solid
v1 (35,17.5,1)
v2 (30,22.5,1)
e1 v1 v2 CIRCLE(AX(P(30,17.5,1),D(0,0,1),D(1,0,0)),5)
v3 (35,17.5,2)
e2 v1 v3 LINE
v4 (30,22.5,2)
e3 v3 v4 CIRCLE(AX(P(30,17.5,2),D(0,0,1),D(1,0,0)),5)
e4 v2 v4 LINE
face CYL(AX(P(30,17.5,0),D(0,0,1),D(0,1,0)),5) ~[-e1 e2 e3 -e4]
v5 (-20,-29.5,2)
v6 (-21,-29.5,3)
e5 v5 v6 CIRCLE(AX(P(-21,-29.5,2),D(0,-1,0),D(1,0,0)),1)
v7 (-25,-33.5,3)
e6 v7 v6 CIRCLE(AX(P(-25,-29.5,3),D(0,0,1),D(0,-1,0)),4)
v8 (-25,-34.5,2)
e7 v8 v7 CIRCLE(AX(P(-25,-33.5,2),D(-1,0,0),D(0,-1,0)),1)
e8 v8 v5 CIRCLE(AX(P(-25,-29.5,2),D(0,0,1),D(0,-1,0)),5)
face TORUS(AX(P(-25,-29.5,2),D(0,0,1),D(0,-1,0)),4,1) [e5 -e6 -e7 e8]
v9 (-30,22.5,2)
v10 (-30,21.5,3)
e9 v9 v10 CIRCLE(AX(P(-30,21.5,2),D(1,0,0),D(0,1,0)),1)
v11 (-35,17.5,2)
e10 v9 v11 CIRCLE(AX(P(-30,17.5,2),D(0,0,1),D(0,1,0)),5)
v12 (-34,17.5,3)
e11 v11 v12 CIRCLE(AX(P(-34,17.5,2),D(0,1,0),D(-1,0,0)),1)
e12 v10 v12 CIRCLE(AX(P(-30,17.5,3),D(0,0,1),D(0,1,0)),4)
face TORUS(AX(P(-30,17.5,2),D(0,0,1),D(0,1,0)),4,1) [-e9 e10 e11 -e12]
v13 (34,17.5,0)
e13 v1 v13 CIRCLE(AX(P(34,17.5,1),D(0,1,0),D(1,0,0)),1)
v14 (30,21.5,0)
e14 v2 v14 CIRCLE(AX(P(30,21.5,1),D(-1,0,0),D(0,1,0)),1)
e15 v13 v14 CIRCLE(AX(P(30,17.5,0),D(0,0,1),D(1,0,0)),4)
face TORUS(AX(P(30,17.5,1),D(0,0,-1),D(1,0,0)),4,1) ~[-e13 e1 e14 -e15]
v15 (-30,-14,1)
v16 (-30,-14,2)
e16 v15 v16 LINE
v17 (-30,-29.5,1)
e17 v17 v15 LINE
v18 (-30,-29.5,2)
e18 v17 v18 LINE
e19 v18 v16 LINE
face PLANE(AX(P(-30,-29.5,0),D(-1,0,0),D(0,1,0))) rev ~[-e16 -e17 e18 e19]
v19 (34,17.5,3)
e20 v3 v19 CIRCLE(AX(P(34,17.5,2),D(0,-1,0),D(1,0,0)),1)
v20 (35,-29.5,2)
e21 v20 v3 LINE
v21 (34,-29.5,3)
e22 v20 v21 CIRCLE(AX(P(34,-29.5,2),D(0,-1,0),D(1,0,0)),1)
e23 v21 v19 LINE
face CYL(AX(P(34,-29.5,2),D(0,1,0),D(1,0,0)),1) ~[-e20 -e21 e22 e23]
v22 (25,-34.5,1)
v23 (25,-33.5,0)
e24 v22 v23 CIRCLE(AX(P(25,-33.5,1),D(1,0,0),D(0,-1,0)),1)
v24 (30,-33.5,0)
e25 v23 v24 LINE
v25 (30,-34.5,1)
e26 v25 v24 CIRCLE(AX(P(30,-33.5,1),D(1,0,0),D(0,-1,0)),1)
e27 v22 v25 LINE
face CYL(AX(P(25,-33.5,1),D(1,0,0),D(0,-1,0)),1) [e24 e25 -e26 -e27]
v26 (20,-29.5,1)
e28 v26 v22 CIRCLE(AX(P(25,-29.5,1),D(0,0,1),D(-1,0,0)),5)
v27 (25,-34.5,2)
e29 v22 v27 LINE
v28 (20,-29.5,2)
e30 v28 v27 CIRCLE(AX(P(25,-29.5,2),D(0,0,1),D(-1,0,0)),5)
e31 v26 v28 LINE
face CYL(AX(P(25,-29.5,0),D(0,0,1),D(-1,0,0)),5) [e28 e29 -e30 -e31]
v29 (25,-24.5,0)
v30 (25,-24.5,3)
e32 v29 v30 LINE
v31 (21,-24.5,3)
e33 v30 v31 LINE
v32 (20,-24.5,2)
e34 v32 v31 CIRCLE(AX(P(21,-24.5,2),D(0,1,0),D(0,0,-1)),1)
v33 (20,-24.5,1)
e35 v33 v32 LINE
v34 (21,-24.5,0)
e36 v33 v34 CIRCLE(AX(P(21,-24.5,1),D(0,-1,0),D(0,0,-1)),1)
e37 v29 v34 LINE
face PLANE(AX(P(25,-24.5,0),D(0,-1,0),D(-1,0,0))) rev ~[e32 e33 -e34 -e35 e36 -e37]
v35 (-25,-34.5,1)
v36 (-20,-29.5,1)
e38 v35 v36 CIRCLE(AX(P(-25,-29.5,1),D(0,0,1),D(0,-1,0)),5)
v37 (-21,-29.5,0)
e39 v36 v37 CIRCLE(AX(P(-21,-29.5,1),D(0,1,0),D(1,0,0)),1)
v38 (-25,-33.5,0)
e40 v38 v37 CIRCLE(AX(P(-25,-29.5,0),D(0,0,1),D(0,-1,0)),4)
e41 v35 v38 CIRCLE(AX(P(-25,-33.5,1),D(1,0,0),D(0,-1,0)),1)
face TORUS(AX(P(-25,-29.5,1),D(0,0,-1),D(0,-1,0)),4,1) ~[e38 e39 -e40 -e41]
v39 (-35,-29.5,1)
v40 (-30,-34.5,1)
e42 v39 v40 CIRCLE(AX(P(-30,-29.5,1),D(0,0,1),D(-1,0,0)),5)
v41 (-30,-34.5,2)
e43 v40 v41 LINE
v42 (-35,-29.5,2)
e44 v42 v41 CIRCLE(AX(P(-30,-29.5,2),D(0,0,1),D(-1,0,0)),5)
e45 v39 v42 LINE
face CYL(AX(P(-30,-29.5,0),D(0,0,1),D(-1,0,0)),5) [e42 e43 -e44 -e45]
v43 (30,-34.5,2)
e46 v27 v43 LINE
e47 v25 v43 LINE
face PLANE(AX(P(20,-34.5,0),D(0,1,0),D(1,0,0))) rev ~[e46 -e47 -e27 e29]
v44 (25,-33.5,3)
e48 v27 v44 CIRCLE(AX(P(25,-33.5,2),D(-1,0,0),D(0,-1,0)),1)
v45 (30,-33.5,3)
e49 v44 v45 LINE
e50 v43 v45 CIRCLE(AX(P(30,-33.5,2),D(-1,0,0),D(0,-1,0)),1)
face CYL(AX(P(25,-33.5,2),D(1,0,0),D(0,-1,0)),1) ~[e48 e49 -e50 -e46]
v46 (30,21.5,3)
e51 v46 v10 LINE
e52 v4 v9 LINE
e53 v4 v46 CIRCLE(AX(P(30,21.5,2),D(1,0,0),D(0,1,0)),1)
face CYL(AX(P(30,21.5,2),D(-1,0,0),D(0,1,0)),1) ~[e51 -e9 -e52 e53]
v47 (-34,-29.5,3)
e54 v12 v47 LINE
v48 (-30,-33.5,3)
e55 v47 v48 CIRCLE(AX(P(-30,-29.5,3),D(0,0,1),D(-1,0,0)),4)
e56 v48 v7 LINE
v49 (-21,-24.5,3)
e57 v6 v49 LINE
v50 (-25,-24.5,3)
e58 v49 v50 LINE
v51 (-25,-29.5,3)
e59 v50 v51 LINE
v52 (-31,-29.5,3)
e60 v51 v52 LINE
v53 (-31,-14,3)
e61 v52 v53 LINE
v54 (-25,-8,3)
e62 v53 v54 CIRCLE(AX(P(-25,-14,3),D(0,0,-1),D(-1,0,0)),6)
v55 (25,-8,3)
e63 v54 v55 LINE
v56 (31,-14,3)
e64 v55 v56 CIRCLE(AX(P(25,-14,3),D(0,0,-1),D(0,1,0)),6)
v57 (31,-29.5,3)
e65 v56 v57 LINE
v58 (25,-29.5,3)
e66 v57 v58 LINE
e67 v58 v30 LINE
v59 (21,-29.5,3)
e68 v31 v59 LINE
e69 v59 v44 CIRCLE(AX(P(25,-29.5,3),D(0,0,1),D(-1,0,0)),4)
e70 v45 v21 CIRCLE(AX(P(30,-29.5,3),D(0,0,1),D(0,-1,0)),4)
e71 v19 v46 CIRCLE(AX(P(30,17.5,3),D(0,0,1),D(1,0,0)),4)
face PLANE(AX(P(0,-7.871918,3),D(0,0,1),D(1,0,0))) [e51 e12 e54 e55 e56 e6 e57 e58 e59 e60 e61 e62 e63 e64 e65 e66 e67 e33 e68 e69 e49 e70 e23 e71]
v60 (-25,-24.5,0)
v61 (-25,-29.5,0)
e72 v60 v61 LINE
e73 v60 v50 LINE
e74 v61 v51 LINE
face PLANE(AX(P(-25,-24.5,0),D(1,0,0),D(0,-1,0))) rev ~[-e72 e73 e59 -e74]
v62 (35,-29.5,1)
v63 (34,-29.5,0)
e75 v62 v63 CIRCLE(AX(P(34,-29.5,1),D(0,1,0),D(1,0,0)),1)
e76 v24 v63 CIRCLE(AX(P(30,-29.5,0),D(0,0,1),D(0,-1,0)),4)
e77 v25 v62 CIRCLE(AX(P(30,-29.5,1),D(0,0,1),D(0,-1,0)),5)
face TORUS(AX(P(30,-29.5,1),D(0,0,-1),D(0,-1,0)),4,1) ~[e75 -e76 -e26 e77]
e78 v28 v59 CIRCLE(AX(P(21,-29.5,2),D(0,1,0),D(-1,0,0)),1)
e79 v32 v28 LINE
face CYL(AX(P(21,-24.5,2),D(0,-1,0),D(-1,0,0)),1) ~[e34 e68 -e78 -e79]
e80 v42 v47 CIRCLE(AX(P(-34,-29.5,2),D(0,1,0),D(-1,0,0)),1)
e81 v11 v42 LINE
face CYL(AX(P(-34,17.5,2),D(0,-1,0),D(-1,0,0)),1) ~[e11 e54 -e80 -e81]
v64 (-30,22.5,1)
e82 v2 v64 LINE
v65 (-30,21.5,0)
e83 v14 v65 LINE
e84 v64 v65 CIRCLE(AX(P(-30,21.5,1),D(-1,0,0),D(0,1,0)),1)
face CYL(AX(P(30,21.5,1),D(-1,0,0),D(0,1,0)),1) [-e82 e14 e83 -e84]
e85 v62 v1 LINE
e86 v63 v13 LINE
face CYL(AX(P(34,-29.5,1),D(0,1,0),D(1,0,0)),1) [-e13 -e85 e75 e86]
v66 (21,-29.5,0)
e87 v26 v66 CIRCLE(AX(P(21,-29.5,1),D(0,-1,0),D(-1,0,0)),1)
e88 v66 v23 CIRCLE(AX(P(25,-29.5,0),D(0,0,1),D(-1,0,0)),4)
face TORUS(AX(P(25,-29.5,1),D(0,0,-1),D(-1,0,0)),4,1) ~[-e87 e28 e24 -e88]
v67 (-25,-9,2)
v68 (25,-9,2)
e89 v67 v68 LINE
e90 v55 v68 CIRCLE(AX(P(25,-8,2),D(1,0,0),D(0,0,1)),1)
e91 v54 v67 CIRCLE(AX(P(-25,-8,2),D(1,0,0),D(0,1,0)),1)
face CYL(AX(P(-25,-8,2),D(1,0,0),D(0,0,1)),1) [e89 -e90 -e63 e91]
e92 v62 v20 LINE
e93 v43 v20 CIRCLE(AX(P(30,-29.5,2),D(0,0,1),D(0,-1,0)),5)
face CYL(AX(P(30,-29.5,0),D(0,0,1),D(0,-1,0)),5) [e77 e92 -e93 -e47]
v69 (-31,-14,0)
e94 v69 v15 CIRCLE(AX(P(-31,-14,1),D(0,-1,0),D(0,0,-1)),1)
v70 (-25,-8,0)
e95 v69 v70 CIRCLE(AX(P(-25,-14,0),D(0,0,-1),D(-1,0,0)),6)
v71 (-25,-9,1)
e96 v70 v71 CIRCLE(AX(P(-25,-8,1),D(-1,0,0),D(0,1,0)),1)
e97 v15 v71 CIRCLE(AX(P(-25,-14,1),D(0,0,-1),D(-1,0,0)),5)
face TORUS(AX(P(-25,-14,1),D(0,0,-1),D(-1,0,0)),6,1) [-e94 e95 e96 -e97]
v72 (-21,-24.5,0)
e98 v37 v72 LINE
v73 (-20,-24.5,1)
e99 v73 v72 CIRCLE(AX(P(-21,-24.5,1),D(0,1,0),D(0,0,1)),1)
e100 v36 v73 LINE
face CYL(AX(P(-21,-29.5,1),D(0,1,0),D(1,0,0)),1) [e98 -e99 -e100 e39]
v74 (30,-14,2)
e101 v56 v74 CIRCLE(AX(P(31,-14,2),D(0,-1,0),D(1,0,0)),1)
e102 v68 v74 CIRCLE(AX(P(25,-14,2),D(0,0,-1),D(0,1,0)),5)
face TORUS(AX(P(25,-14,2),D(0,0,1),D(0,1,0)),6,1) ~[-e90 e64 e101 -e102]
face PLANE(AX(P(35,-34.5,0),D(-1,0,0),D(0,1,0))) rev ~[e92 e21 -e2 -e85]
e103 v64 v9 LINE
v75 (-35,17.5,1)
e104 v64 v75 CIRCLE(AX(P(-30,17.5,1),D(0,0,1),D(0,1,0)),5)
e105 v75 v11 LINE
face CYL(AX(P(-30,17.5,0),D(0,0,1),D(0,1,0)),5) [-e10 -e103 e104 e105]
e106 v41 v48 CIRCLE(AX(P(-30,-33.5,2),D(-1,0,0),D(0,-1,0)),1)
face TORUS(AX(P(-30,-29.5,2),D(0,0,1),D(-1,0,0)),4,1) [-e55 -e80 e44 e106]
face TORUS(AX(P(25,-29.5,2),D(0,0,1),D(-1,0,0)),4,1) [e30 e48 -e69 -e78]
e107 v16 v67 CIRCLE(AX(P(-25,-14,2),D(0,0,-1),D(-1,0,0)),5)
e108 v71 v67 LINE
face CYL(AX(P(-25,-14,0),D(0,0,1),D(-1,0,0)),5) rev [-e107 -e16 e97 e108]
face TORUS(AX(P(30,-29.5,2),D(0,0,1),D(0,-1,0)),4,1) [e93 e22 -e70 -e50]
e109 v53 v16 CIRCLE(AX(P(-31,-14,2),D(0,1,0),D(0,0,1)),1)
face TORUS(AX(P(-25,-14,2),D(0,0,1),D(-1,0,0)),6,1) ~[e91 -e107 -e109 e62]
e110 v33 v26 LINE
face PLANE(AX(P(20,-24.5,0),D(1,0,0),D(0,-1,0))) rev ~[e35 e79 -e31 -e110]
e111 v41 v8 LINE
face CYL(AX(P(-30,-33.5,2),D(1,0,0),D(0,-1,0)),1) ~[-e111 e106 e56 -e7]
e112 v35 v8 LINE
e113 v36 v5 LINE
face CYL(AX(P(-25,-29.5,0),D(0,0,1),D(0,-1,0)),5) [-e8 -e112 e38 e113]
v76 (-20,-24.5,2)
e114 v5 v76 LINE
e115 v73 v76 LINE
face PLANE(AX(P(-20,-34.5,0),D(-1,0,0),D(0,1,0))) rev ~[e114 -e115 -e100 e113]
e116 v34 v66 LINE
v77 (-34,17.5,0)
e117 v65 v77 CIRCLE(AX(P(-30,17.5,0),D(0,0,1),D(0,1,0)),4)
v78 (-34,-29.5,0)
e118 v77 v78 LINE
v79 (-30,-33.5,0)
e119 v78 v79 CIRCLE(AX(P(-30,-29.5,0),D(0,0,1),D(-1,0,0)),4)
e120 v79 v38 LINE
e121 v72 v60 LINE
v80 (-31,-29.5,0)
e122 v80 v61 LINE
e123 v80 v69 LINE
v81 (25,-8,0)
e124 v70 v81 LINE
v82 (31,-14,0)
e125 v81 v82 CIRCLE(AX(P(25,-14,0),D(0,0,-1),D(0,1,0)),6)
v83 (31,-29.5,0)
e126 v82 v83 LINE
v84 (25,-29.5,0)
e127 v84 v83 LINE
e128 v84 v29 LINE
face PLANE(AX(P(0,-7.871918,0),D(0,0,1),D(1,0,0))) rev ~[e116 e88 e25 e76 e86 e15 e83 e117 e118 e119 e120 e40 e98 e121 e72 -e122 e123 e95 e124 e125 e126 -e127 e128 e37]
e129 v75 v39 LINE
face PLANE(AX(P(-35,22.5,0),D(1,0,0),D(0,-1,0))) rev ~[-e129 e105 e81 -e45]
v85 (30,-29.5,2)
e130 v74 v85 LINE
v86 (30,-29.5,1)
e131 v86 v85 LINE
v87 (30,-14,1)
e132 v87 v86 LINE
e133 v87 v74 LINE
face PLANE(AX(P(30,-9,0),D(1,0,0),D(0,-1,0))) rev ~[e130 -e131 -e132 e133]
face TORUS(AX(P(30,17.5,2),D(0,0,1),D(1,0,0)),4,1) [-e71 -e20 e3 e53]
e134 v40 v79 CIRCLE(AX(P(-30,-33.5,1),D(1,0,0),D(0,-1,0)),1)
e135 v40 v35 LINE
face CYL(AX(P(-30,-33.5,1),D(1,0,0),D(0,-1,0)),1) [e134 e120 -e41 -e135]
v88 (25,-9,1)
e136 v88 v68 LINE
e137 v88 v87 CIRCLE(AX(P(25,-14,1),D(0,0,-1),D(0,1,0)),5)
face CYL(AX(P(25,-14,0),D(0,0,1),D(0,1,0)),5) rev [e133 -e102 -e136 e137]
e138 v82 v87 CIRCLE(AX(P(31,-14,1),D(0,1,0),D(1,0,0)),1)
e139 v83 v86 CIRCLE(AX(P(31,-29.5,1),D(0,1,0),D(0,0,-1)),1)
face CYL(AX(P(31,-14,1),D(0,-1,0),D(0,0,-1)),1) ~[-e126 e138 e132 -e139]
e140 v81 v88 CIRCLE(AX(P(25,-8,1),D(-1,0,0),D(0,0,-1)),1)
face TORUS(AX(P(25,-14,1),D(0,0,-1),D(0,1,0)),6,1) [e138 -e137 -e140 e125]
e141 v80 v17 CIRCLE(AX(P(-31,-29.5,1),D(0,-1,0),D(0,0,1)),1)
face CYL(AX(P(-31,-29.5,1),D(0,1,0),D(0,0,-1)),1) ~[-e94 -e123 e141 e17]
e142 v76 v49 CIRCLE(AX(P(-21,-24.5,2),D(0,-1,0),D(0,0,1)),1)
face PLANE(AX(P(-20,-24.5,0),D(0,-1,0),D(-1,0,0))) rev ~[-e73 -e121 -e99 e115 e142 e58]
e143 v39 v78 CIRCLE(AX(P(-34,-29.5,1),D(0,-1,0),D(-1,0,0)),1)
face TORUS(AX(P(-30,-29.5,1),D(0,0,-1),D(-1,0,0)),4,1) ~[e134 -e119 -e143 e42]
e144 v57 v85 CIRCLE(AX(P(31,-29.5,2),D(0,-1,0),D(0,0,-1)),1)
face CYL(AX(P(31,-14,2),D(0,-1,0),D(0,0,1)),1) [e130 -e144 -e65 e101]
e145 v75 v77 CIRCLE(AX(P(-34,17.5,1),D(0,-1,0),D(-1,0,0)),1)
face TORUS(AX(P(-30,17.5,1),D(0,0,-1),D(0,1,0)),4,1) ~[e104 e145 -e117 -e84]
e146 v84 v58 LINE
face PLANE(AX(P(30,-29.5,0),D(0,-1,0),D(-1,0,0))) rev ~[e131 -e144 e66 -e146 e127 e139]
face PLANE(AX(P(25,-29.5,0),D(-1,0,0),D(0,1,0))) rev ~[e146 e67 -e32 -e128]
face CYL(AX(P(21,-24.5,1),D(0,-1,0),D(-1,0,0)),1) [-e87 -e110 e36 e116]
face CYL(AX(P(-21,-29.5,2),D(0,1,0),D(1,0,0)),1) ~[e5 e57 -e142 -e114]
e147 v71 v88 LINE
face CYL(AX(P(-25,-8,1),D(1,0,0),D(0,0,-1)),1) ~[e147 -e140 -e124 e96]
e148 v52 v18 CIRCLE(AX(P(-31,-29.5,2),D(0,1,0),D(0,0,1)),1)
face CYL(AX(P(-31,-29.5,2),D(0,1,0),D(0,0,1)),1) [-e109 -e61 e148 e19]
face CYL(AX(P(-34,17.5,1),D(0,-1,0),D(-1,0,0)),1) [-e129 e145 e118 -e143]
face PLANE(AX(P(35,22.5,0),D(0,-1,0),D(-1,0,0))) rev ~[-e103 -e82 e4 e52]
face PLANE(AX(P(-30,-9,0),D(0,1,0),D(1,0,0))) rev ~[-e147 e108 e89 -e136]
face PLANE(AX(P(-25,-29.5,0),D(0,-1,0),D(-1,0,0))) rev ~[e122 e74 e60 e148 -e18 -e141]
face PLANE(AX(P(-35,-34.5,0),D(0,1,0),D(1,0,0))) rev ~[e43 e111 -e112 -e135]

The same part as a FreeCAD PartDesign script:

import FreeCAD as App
import Part
import Sketcher


def edges_at(feature, points):
    """Names of the edges that pass closest to the given points."""
    edges = feature.Shape.Edges
    near = lambda p: min(range(len(edges)), key=lambda i: edges[i].distToShape(Part.Vertex(*p))[0])
    return sorted({f"Edge{near(p) + 1}" for p in points})

doc = App.newDocument("Part")
params = doc.addObject("Spreadsheet::Sheet", "Params")
for row, (alias, value) in enumerate([
    ("sketch1_width", "70 mm"),
    ("sketch1_width2", "15 mm"),
    ("sketch1_width3", "5 mm"),
    ("sketch1_height", "57 mm"),
    ("sketch1_height2", "10 mm"),
    ("pad1_length", "3 mm"),
    ("fillet_radius", "5 mm"),
    ("fillet2_radius", "1 mm"),
], start=1):
    params.set(f"A{row}", alias)
    params.set(f"B{row}", "=" + value)
    params.setAlias(f"B{row}", alias)

body = doc.addObject("PartDesign::Body", "Body")

sketch1 = body.newObject("Sketcher::SketchObject", "Sketch")
sketch1.AttachmentSupport = (doc.getObject("XY_Plane"), [""])
sketch1.MapMode = "FlatFace"
sketch1.addGeometry(Part.LineSegment(App.Vector(35, 22.5, 0), App.Vector(-35, 22.5, 0)), False)
sketch1.addGeometry(Part.LineSegment(App.Vector(-35, 22.5, 0), App.Vector(-35, -34.5, 0)), False)
sketch1.addGeometry(Part.LineSegment(App.Vector(-35, -34.5, 0), App.Vector(-20, -34.5, 0)), False)
sketch1.addGeometry(Part.LineSegment(App.Vector(-20, -34.5, 0), App.Vector(-20, -24.5, 0)), False)
sketch1.addGeometry(Part.LineSegment(App.Vector(-20, -24.5, 0), App.Vector(-25, -24.5, 0)), False)
sketch1.addGeometry(Part.LineSegment(App.Vector(-25, -24.5, 0), App.Vector(-25, -29.5, 0)), False)
sketch1.addGeometry(Part.LineSegment(App.Vector(-25, -29.5, 0), App.Vector(-30, -29.5, 0)), False)
sketch1.addGeometry(Part.LineSegment(App.Vector(-30, -29.5, 0), App.Vector(-30, -9, 0)), False)
sketch1.addGeometry(Part.LineSegment(App.Vector(-30, -9, 0), App.Vector(30, -9, 0)), False)
sketch1.addGeometry(Part.LineSegment(App.Vector(30, -9, 0), App.Vector(30, -29.5, 0)), False)
sketch1.addGeometry(Part.LineSegment(App.Vector(30, -29.5, 0), App.Vector(25, -29.5, 0)), False)
sketch1.addGeometry(Part.LineSegment(App.Vector(25, -29.5, 0), App.Vector(25, -24.5, 0)), False)
sketch1.addGeometry(Part.LineSegment(App.Vector(25, -24.5, 0), App.Vector(20, -24.5, 0)), False)
sketch1.addGeometry(Part.LineSegment(App.Vector(20, -24.5, 0), App.Vector(20, -34.5, 0)), False)
sketch1.addGeometry(Part.LineSegment(App.Vector(20, -34.5, 0), App.Vector(35, -34.5, 0)), False)
sketch1.addGeometry(Part.LineSegment(App.Vector(35, -34.5, 0), App.Vector(35, 22.5, 0)), False)
sketch1.addConstraint(Sketcher.Constraint("Coincident", 0, 2, 1, 1))
sketch1.addConstraint(Sketcher.Constraint("Coincident", 1, 2, 2, 1))
sketch1.addConstraint(Sketcher.Constraint("Coincident", 2, 2, 3, 1))
sketch1.addConstraint(Sketcher.Constraint("Coincident", 3, 2, 4, 1))
sketch1.addConstraint(Sketcher.Constraint("Coincident", 4, 2, 5, 1))
sketch1.addConstraint(Sketcher.Constraint("Coincident", 5, 2, 6, 1))
sketch1.addConstraint(Sketcher.Constraint("Coincident", 6, 2, 7, 1))
sketch1.addConstraint(Sketcher.Constraint("Coincident", 7, 2, 8, 1))
sketch1.addConstraint(Sketcher.Constraint("Coincident", 8, 2, 9, 1))
sketch1.addConstraint(Sketcher.Constraint("Coincident", 9, 2, 10, 1))
sketch1.addConstraint(Sketcher.Constraint("Coincident", 10, 2, 11, 1))
sketch1.addConstraint(Sketcher.Constraint("Coincident", 11, 2, 12, 1))
sketch1.addConstraint(Sketcher.Constraint("Coincident", 12, 2, 13, 1))
sketch1.addConstraint(Sketcher.Constraint("Coincident", 13, 2, 14, 1))
sketch1.addConstraint(Sketcher.Constraint("Coincident", 14, 2, 15, 1))
sketch1.addConstraint(Sketcher.Constraint("Coincident", 15, 2, 0, 1))
sketch1.addConstraint(Sketcher.Constraint("Horizontal", 0))
sketch1.addConstraint(Sketcher.Constraint("Vertical", 1))
sketch1.addConstraint(Sketcher.Constraint("Horizontal", 2))
sketch1.addConstraint(Sketcher.Constraint("Vertical", 3))
sketch1.addConstraint(Sketcher.Constraint("Horizontal", 4))
sketch1.addConstraint(Sketcher.Constraint("Vertical", 5))
sketch1.addConstraint(Sketcher.Constraint("Horizontal", 6))
sketch1.addConstraint(Sketcher.Constraint("Vertical", 7))
sketch1.addConstraint(Sketcher.Constraint("Horizontal", 8))
sketch1.addConstraint(Sketcher.Constraint("Vertical", 9))
sketch1.addConstraint(Sketcher.Constraint("Horizontal", 10))
sketch1.addConstraint(Sketcher.Constraint("Vertical", 11))
sketch1.addConstraint(Sketcher.Constraint("Horizontal", 12))
sketch1.addConstraint(Sketcher.Constraint("Vertical", 13))
sketch1.addConstraint(Sketcher.Constraint("Horizontal", 14))
sketch1.addConstraint(Sketcher.Constraint("Vertical", 15))
sketch1.addConstraint(Sketcher.Constraint("Symmetric", 6, 2, 9, 2, -2))
sketch1.addConstraint(Sketcher.Constraint("Symmetric", 4, 2, 11, 2, -2))
sketch1.addConstraint(Sketcher.Constraint("Symmetric", 2, 2, 13, 2, -2))
sketch1.addConstraint(Sketcher.Constraint("Equal", 4, 6))
sketch1.addConstraint(Sketcher.Constraint("Equal", 2, 14))
sketch1.addConstraint(Sketcher.Constraint("Equal", 12, 5))
sketch1.addConstraint(Sketcher.Constraint("DistanceX", 0, 2, 0, 1, 70.0))
sketch1.addConstraint(Sketcher.Constraint("DistanceX", 2, 1, 2, 2, 15.0))
sketch1.addConstraint(Sketcher.Constraint("DistanceX", 4, 2, 4, 1, 5.0))
sketch1.addConstraint(Sketcher.Constraint("DistanceY", 1, 2, 1, 1, 57.0))
sketch1.addConstraint(Sketcher.Constraint("DistanceY", 3, 1, 3, 2, 10.0))
sketch1.addConstraint(Sketcher.Constraint("DistanceY", 7, 1, 7, 2, 20.5))
sketch1.addConstraint(Sketcher.Constraint("DistanceY", 7, 2, -1, 1, 9.0))
sketch1.setExpression("Constraints[38]", "Params.sketch1_width")
sketch1.setExpression("Constraints[39]", "Params.sketch1_width2")
sketch1.setExpression("Constraints[40]", "Params.sketch1_width3")
sketch1.setExpression("Constraints[41]", "Params.sketch1_height")
sketch1.setExpression("Constraints[42]", "Params.sketch1_height2")
pad1 = body.newObject("PartDesign::Pad", "Pad")
pad1.Profile = sketch1
pad1.setExpression("Length", "Params.pad1_length")
doc.recompute()

fillet = body.newObject("PartDesign::Fillet", "Fillet")
fillet.Base = (pad1, edges_at(pad1, [
    (-35, -34.5, 1.5),
    (-20, -34.5, 1.5),
    (-30, -9, 1.5),
    (35, -34.5, 1.5),
    (20, -34.5, 1.5),
    (35, 22.5, 1.5),
    (-35, 22.5, 1.5),
    (30, -9, 1.5),
]))
fillet.setExpression("Radius", "Params.fillet_radius")
doc.recompute()

fillet2 = body.newObject("PartDesign::Fillet", "Fillet001")
fillet2.Base = (fillet, edges_at(fillet, [
    (0, 22.5, 3),
    (0, 22.5, 0),
    (0, -9, 3),
    (30, -21.75, 3),
    (0, -9, 0),
    (30, -21.75, 0),
]))
fillet2.setExpression("Radius", "Params.fillet2_radius")

doc.recompute()
